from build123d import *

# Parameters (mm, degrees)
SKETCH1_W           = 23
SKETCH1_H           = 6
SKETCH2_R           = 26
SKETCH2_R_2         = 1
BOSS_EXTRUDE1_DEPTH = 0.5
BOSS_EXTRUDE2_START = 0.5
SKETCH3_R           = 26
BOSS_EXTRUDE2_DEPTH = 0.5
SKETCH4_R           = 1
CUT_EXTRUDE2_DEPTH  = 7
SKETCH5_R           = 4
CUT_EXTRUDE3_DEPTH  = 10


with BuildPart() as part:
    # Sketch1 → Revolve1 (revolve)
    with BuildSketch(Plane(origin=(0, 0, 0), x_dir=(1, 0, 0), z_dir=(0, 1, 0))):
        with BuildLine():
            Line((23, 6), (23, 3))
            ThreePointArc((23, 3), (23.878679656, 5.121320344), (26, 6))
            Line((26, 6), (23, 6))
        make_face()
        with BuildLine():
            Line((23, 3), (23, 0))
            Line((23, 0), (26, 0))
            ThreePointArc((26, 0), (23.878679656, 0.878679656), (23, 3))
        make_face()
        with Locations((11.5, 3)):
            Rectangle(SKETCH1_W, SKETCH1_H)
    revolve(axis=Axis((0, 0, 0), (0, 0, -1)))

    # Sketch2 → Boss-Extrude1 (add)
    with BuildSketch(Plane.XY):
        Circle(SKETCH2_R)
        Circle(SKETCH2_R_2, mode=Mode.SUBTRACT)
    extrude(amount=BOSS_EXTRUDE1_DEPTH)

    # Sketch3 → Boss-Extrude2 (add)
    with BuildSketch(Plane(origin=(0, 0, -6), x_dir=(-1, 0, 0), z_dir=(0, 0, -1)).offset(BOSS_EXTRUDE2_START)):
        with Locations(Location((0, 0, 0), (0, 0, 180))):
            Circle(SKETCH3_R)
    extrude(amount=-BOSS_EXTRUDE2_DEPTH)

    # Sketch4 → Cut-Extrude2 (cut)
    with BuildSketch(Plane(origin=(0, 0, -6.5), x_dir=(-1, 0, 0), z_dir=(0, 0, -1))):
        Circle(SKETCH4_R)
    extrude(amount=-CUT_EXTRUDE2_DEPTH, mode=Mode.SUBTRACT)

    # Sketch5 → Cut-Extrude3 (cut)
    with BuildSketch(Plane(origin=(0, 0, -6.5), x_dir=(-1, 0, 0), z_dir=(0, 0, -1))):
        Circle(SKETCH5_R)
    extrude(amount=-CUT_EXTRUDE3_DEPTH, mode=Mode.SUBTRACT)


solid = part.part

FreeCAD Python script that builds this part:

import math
import FreeCAD as App
import Part
import Sketcher
Q = App.Units.Quantity

doc = App.newDocument("Part")
body = doc.addObject("PartDesign::Body", "Body")

# Sketch on XZ plane
sketch1 = body.newObject("Sketcher::SketchObject", "Sketch")
sketch1.AttachmentSupport = (doc.getObject("XZ_Plane"), [""])
sketch1.MapMode = "FlatFace"
sketch1.addGeometry(Part.ArcOfCircle(Part.Circle(App.Vector(26, -3, 0), App.Vector(0, 0, 1), 3), math.radians(180), math.radians(270)), False)
sketch1.addGeometry(Part.LineSegment(App.Vector(26, -6, 0), App.Vector(0, -6, 0)), False)
sketch1.addGeometry(Part.LineSegment(App.Vector(0, -6, 0), App.Vector(0, 0, 0)), False)
sketch1.addGeometry(Part.LineSegment(App.Vector(0, 0, 0), App.Vector(26, 0, 0)), False)
sketch1.addGeometry(Part.ArcOfCircle(Part.Circle(App.Vector(26, -3, 0), App.Vector(0, 0, 1), 3), math.radians(90), math.radians(180)), False)
sketch1.addConstraint(Sketcher.Constraint("Tangent", 0, 2, 1, 1))
sketch1.addConstraint(Sketcher.Constraint("Coincident", 1, 2, 2, 1))
sketch1.addConstraint(Sketcher.Constraint("Coincident", 2, 2, 3, 1))
sketch1.addConstraint(Sketcher.Constraint("Tangent", 3, 2, 4, 1))
sketch1.addConstraint(Sketcher.Constraint("Tangent", 4, 2, 0, 1))
sketch1.addConstraint(Sketcher.Constraint("Horizontal", 1))
sketch1.addConstraint(Sketcher.Constraint("Vertical", 2))
sketch1.addConstraint(Sketcher.Constraint("Horizontal", 3))
sketch1.addConstraint(Sketcher.Constraint("Coincident", 2, 2, -1, 1))
sketch1.addConstraint(Sketcher.Constraint("Equal", 0, 4))
sketch1.addConstraint(Sketcher.Constraint("Horizontal", 0, 3, 4, 2))
sketch1.addConstraint(Sketcher.Constraint("Radius", 0, Q("3 mm")))
sketch1.addConstraint(Sketcher.Constraint("DistanceX", 1, 2, 1, 1, Q("26 mm")))
revolution = body.newObject("PartDesign::Revolution", "Revolution")
revolution.Profile = sketch1
revolution.ReferenceAxis = (sketch1, ["V_Axis"])
revolution.Angle = 360

# Sketch on XY plane
sketch2 = body.newObject("Sketcher::SketchObject", "Sketch001")
sketch2.AttachmentSupport = (doc.getObject("XY_Plane"), [""])
sketch2.MapMode = "FlatFace"
sketch2.addGeometry(Part.Circle(App.Vector(0, 0, 0), App.Vector(0, 0, 1), 26), False)
sketch2.addGeometry(Part.Circle(App.Vector(0, 0, 0), App.Vector(0, 0, 1), 1), False)
sketch2.addConstraint(Sketcher.Constraint("Coincident", 0, 3, -1, 1))
sketch2.addConstraint(Sketcher.Constraint("Coincident", 1, 3, -1, 1))
sketch2.addConstraint(Sketcher.Constraint("Diameter", 0, Q("52 mm")))
sketch2.addConstraint(Sketcher.Constraint("Diameter", 1, Q("2 mm")))
pad1 = body.newObject("PartDesign::Pad", "Pad")
pad1.Profile = sketch2
pad1.Length = 0.5

# Sketch on XY plane
sketch3 = body.newObject("Sketcher::SketchObject", "Sketch002")
sketch3.AttachmentSupport = (doc.getObject("XY_Plane"), [""])
sketch3.MapMode = "FlatFace"
sketch3.AttachmentOffset = App.Placement(App.Vector(0, 0, -6.5), App.Rotation())
sketch3.addGeometry(Part.Circle(App.Vector(0, 0, 0), App.Vector(0, 0, 1), 26), False)
sketch3.addConstraint(Sketcher.Constraint("Coincident", 0, 3, -1, 1))
sketch3.addConstraint(Sketcher.Constraint("Diameter", 0, Q("52 mm")))
pad2 = body.newObject("PartDesign::Pad", "Pad001")
pad2.Profile = sketch3
pad2.Length = 0.5

# Sketch on XY plane
sketch4 = body.newObject("Sketcher::SketchObject", "Sketch003")
sketch4.AttachmentSupport = (doc.getObject("XY_Plane"), [""])
sketch4.MapMode = "FlatFace"
sketch4.AttachmentOffset = App.Placement(App.Vector(0, 0, -6.5), App.Rotation())
sketch4.addGeometry(Part.Circle(App.Vector(0, 0, 0), App.Vector(0, 0, 1), 1), False)
sketch4.addConstraint(Sketcher.Constraint("Coincident", 0, 3, -1, 1))
sketch4.addConstraint(Sketcher.Constraint("Diameter", 0, Q("2 mm")))
pocket1 = body.newObject("PartDesign::Pocket", "Pocket")
pocket1.Profile = sketch4
pocket1.Length = 7
pocket1.Reversed = True

# Sketch on XY plane
sketch5 = body.newObject("Sketcher::SketchObject", "Sketch004")
sketch5.AttachmentSupport = (doc.getObject("XY_Plane"), [""])
sketch5.MapMode = "FlatFace"
sketch5.AttachmentOffset = App.Placement(App.Vector(0, 0, -6.5), App.Rotation())
sketch5.addGeometry(Part.Circle(App.Vector(0, 0, 0), App.Vector(0, 0, 1), 4), False)
sketch5.addConstraint(Sketcher.Constraint("Coincident", 0, 3, -1, 1))
sketch5.addConstraint(Sketcher.Constraint("Diameter", 0, Q("8 mm")))
pocket2 = body.newObject("PartDesign::Pocket", "Pocket001")
pocket2.Profile = sketch5
pocket2.Length = 10
pocket2.Reversed = True

doc.recompute()
